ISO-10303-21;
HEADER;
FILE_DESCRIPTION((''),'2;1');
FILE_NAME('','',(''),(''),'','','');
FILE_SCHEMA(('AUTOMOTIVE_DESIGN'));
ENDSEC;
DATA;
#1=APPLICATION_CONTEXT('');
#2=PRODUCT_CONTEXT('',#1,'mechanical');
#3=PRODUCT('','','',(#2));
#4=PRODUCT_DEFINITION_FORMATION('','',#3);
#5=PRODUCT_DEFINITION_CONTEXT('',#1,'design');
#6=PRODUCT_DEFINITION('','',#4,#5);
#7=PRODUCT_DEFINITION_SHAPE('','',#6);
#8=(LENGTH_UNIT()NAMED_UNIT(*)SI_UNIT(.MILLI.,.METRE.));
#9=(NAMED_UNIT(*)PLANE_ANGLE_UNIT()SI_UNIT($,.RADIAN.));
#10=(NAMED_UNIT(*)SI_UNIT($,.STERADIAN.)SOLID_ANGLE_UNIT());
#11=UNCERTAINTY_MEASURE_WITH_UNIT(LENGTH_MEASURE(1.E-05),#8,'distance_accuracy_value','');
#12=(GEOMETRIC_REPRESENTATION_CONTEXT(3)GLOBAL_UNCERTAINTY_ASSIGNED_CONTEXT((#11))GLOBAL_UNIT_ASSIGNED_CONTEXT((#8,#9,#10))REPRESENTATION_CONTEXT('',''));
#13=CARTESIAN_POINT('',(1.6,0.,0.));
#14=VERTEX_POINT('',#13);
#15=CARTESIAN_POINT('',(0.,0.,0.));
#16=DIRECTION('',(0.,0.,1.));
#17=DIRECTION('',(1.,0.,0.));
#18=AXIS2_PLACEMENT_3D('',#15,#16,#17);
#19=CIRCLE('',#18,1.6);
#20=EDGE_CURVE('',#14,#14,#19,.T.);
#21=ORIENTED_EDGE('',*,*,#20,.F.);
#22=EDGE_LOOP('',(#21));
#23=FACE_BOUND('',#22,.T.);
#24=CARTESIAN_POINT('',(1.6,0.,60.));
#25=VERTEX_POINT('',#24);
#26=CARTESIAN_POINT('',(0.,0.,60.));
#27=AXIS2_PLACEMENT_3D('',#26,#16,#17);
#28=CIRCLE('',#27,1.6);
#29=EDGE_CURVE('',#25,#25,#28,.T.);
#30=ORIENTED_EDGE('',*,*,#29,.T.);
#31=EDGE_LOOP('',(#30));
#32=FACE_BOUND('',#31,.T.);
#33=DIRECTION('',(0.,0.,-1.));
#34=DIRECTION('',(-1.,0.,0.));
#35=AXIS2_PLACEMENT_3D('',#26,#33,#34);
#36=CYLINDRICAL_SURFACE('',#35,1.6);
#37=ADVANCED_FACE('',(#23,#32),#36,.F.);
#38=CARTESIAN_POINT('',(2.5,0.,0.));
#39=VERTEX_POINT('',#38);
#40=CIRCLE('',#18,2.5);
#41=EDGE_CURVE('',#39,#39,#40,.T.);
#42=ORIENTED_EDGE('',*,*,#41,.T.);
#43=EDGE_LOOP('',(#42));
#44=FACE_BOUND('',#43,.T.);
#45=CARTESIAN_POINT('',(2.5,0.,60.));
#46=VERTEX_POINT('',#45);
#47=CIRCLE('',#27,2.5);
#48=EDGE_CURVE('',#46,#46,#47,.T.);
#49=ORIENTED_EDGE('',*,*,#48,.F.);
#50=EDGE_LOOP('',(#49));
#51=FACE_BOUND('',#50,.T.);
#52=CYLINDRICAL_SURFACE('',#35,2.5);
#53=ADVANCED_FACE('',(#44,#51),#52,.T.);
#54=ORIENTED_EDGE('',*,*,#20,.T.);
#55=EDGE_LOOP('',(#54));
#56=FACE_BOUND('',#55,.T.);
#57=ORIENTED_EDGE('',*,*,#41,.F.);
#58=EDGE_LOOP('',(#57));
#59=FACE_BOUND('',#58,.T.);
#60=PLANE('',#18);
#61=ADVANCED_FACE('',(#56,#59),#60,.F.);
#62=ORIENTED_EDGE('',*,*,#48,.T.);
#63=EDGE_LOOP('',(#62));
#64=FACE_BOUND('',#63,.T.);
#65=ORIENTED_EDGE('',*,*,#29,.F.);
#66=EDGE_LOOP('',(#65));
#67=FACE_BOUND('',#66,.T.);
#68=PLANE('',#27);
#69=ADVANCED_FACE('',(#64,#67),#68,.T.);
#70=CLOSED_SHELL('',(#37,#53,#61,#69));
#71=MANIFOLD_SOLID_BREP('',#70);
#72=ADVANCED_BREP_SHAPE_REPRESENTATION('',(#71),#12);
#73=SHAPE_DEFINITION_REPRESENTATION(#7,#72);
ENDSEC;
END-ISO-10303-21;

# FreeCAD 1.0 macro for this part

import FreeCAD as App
import Part
import Sketcher

V = App.Vector

doc = App.newDocument("Part")
body = doc.addObject("PartDesign::Body", "Body")

# Sketch on XY plane
sketch1 = doc.addObject("Sketcher::SketchObject", "Sketch")
body.addObject(sketch1)
sketch1.AttachmentSupport = (doc.XY_Plane, [""])
sketch1.MapMode = "FlatFace"
sketch1.addGeometry(Part.Circle(V(0, 0, 0), V(0, 0, 1), 2.5), False)
sketch1.addGeometry(Part.Circle(V(0, 0, 0), V(0, 0, 1), 1.6), False)
sketch1.addConstraint(Sketcher.Constraint("Coincident", 0, 3, -1, 1))
sketch1.addConstraint(Sketcher.Constraint("Coincident", 1, 3, -1, 1))
sketch1.addConstraint(Sketcher.Constraint("Diameter", 0, 5.0))
sketch1.addConstraint(Sketcher.Constraint("Diameter", 1, 3.2))
pad1 = doc.addObject("PartDesign::Pad", "Pad")
body.addObject(pad1)
pad1.Profile = sketch1
pad1.Length = 60

doc.recompute()
